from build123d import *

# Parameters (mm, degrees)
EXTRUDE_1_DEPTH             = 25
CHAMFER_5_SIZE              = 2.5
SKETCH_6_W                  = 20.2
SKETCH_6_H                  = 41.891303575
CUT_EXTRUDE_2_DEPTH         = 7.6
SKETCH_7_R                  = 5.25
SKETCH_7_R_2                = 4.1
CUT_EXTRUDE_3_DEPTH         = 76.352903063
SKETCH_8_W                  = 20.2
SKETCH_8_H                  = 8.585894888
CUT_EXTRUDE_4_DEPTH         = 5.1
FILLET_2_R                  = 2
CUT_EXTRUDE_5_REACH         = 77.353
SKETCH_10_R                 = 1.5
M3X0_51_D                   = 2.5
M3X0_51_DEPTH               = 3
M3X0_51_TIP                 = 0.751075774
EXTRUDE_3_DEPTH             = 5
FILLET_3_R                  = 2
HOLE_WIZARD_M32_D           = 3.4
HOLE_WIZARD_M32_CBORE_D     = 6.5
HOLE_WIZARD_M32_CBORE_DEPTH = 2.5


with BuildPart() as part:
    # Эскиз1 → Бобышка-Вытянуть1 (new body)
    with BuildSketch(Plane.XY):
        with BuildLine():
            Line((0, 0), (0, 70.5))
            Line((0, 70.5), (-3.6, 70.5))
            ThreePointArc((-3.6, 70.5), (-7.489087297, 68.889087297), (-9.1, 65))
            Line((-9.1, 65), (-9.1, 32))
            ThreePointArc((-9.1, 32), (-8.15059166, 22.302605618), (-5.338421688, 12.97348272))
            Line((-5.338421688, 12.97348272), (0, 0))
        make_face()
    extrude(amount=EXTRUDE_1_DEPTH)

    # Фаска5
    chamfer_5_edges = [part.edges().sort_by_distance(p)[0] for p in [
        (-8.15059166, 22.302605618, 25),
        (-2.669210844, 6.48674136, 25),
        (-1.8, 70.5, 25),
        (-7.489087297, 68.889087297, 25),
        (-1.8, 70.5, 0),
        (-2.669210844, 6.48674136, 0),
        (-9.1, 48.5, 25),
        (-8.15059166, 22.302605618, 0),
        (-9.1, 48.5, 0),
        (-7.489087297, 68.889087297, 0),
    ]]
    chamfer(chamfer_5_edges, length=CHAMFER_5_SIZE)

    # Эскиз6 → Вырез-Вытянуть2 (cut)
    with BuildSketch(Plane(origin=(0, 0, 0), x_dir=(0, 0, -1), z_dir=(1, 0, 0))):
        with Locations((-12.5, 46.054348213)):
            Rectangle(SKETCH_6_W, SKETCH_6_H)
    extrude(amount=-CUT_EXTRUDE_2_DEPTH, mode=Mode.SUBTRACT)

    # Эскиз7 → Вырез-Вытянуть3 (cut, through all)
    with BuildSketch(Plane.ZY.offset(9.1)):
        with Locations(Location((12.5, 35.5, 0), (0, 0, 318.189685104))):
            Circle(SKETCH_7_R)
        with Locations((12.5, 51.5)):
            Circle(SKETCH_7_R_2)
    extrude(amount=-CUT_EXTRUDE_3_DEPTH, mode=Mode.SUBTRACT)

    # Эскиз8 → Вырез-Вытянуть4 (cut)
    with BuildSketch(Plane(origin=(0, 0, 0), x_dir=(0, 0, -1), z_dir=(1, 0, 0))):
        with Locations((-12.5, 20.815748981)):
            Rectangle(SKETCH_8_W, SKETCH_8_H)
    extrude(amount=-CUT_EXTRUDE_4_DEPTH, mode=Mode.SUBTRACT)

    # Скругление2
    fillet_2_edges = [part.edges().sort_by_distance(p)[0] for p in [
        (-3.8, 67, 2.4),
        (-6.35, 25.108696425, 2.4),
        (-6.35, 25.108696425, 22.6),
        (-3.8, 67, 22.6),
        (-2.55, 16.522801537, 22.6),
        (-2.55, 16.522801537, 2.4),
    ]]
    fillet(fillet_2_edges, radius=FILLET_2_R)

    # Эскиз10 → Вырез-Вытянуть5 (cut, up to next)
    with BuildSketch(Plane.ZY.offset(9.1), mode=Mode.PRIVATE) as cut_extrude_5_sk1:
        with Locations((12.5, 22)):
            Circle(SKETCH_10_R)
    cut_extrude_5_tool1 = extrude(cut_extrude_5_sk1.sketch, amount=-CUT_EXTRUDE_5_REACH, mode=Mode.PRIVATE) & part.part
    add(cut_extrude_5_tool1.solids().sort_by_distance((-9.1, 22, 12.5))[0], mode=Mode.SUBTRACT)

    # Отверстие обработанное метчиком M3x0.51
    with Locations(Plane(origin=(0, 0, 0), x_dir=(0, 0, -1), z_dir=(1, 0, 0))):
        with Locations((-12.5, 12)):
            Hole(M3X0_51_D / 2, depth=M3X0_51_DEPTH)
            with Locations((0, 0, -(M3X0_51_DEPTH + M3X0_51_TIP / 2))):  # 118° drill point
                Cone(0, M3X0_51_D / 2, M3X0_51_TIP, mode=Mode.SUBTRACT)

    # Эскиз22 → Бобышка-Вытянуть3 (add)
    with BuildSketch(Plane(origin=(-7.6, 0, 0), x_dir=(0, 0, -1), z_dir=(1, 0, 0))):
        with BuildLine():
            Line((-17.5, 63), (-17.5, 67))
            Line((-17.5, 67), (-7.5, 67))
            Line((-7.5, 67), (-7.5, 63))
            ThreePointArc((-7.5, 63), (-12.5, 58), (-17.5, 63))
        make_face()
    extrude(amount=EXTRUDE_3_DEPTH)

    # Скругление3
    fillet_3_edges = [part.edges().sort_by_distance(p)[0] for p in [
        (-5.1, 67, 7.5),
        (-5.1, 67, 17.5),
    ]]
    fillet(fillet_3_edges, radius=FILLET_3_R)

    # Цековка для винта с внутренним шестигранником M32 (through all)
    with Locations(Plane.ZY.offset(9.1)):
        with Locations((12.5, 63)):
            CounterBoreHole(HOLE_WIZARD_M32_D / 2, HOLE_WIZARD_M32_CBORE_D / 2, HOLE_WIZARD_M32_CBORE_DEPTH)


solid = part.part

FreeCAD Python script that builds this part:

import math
import FreeCAD as App
import Part
import Sketcher
from FreeCAD import Vector


def edges_at(feature, points):
    """Names of the edges that pass closest to the given points."""
    edges = feature.Shape.Edges
    near = lambda p: min(range(len(edges)), key=lambda i: edges[i].distToShape(Part.Vertex(*p))[0])
    return sorted({f"Edge{near(p) + 1}" for p in points})


def add_polygon(sketch, points):
    """Adds a closed chain of lines whose ends are joined by coincident constraints."""
    first, n = sketch.GeometryCount, len(points)
    for a, b in zip(points, points[1:] + points[:1]):
        sketch.addGeometry(Part.LineSegment(App.Vector(*a, 0), App.Vector(*b, 0)), False)
    for i in range(n):
        sketch.addConstraint(Sketcher.Constraint("Coincident", first + i, 2, first + (i + 1) % n, 1))

doc = App.newDocument("Part")
body = doc.addObject("PartDesign::Body", "Body")

sketch1 = body.newObject("Sketcher::SketchObject", "Sketch")
sketch1.AttachmentSupport = (doc.getObject("XY_Plane"), [""])
sketch1.MapMode = "FlatFace"
sketch1.addGeometry([
    Part.LineSegment(Vector(0, 0, 0), Vector(0, 70.5, 0)),
    Part.LineSegment(Vector(0, 70.5, 0), Vector(-3.6, 70.5, 0)),
    Part.ArcOfCircle(Part.Circle(Vector(-3.6, 65, 0), Vector(0, 0, 1), 5.5), math.radians(90), math.radians(180)),
    Part.LineSegment(Vector(-9.1, 65, 0), Vector(-9.1, 32, 0)),
    Part.ArcOfCircle(Part.Circle(Vector(40.9, 32, 0), Vector(0, 0, 1), 50), math.radians(180), math.radians(202)),
    Part.LineSegment(Vector(-5.3, 13, 0), Vector(0, 0, 0)),
], False)
sketch1.addConstraint([
    Sketcher.Constraint("Coincident", 0, 2, 1, 1),
    Sketcher.Constraint("Tangent", 1, 2, 2, 1),
    Sketcher.Constraint("Tangent", 2, 2, 3, 1),
    Sketcher.Constraint("Tangent", 3, 2, 4, 1),
    Sketcher.Constraint("Tangent", 4, 2, 5, 1),
    Sketcher.Constraint("Coincident", 5, 2, 0, 1),
    Sketcher.Constraint("Vertical", 0),
    Sketcher.Constraint("Horizontal", 1),
    Sketcher.Constraint("Vertical", 3),
    Sketcher.Constraint("Coincident", 5, 2, -1, 1),
    Sketcher.Constraint("Radius", 4, 50.0),
    Sketcher.Constraint("Radius", 2, 5.5),
    Sketcher.Constraint("DistanceY", 3, 2, 3, 1, 33.0),
    Sketcher.Constraint("DistanceX", 1, 2, 1, 1, 3.6),
    Sketcher.Constraint("DistanceY", 0, 1, 0, 2, 70.5),
])
pad1 = body.newObject("PartDesign::Pad", "Pad")
pad1.Profile = sketch1
pad1.Length = 25
doc.recompute()

chamfer = body.newObject("PartDesign::Chamfer", "Chamfer")
chamfer.Base = (pad1, edges_at(pad1, [
    (-8.151, 22.303, 25),
    (-2.669, 6.487, 25),
    (-1.8, 70.5, 25),
    (-7.489, 68.889, 25),
    (-1.8, 70.5, 0),
    (-2.669, 6.487, 0),
    (-9.1, 48.5, 25),
    (-8.151, 22.303, 0),
    (-9.1, 48.5, 0),
    (-7.489, 68.889, 0),
]))
chamfer.Size = 2.5

sketch2 = body.newObject("Sketcher::SketchObject", "Sketch001")
sketch2.AttachmentSupport = (doc.getObject("YZ_Plane"), [""])
sketch2.MapMode = "FlatFace"
add_polygon(sketch2, [(67, 23), (25, 23), (25, 2), (67, 2)])
sketch2.addConstraint([
    Sketcher.Constraint("Horizontal", 0),
    Sketcher.Constraint("Vertical", 1),
    Sketcher.Constraint("Horizontal", 2),
    Sketcher.Constraint("Vertical", 3),
    Sketcher.Constraint("DistanceY", 1, 2, 1, 1, 20.2),
    Sketcher.Constraint("DistanceX", -1, 1, 2, 2, 67.0),
    Sketcher.Constraint("DistanceY", -1, 1, 0, 2, 22.6),
    Sketcher.Constraint("DistanceX", 0, 2, 0, 1, 41.891304),
])
pocket1 = body.newObject("PartDesign::Pocket", "Pocket")
pocket1.Profile = sketch2
pocket1.Length = 7.6

sketch3 = body.newObject("Sketcher::SketchObject", "Sketch002")
sketch3.AttachmentSupport = (doc.getObject("YZ_Plane"), [""])
sketch3.MapMode = "FlatFace"
sketch3.AttachmentOffset = App.Placement(Vector(0, 0, -9.1), App.Rotation())
sketch3.addGeometry([
    Part.Circle(Vector(35.5, 12.5, 0), Vector(0, 0, 1), 5.2),
    Part.Circle(Vector(51.5, 12.5, 0), Vector(0, 0, 1), 4.1),
], False)
sketch3.addConstraint([
    Sketcher.Constraint("Horizontal", 0, 3, 1, 3),
    Sketcher.Constraint("Diameter", 0, 10.5),
    Sketcher.Constraint("Diameter", 1, 8.2),
    Sketcher.Constraint("DistanceX", 0, 3, 1, 3, 16.0),
    Sketcher.Constraint("DistanceX", -1, 1, 0, 3, 35.5),
    Sketcher.Constraint("DistanceY", -1, 1, 0, 3, 12.5),
])
pocket2 = body.newObject("PartDesign::Pocket", "Pocket001")
pocket2.Profile = sketch3
pocket2.Type = "ThroughAll"
pocket2.Reversed = True

sketch4 = body.newObject("Sketcher::SketchObject", "Sketch003")
sketch4.AttachmentSupport = (doc.getObject("YZ_Plane"), [""])
sketch4.MapMode = "FlatFace"
add_polygon(sketch4, [(25, 23), (17, 23), (17, 2), (25, 2)])
sketch4.addConstraint([
    Sketcher.Constraint("Horizontal", 0),
    Sketcher.Constraint("Vertical", 1),
    Sketcher.Constraint("Horizontal", 2),
    Sketcher.Constraint("Vertical", 3),
    Sketcher.Constraint("DistanceY", 1, 2, 1, 1, 20.2),
    Sketcher.Constraint("DistanceY", -1, 1, 0, 2, 22.6),
    Sketcher.Constraint("DistanceX", -1, 1, 0, 2, 16.522802),
    Sketcher.Constraint("DistanceX", 0, 2, 0, 1, 8.585895),
])
pocket3 = body.newObject("PartDesign::Pocket", "Pocket002")
pocket3.Profile = sketch4
pocket3.Length = 5.1
doc.recompute()

fillet = body.newObject("PartDesign::Fillet", "Fillet")
fillet.Base = (pocket3, edges_at(pocket3, [
    (-3.8, 67, 2.4),
    (-6.35, 25.109, 2.4),
    (-6.35, 25.109, 22.6),
    (-3.8, 67, 22.6),
    (-2.55, 16.523, 22.6),
    (-2.55, 16.523, 2.4),
]))
fillet.Radius = 2

sketch5 = body.newObject("Sketcher::SketchObject", "Sketch004")
sketch5.AttachmentSupport = (doc.getObject("YZ_Plane"), [""])
sketch5.MapMode = "FlatFace"
sketch5.AttachmentOffset = App.Placement(Vector(0, 0, -9.1), App.Rotation())
sketch5.addGeometry(Part.Circle(Vector(22, 12.5, 0), Vector(0, 0, 1), 1.5), False)
sketch5.addConstraint([
    Sketcher.Constraint("Diameter", 0, 3.0),
    Sketcher.Constraint("DistanceX", -1, 1, 0, 3, 22.0),
    Sketcher.Constraint("DistanceY", -1, 1, 0, 3, 12.5),
])
pocket4 = body.newObject("PartDesign::Pocket", "Pocket003")
pocket4.Profile = sketch5
pocket4.Length = 4
pocket4.Reversed = True

sketch6 = body.newObject("Sketcher::SketchObject", "Sketch005")
sketch6.AttachmentSupport = (doc.getObject("YZ_Plane"), [""])
sketch6.MapMode = "FlatFace"
sketch6.addGeometry(Part.Circle(Vector(12, 12.5, 0), Vector(0, 0, 1), 1.2), False)
sketch6.addConstraint([
    Sketcher.Constraint("Diameter", 0, 2.5),
    Sketcher.Constraint("DistanceX", -1, 1, 0, 3, 12.0),
    Sketcher.Constraint("DistanceY", -1, 1, 0, 3, 12.5),
])
doc.recompute()
hole = body.newObject("PartDesign::Hole", "Hole")
hole.Profile = sketch6
hole.ThreadType = "None"
hole.Diameter = 2.5
hole.DepthType = "Dimension"
hole.Depth = 3
hole.DrillPoint = "Angled"
hole.DrillPointAngle = 118

sketch7 = body.newObject("Sketcher::SketchObject", "Sketch006")
sketch7.AttachmentSupport = (doc.getObject("YZ_Plane"), [""])
sketch7.MapMode = "FlatFace"
sketch7.AttachmentOffset = App.Placement(Vector(0, 0, -7.6), App.Rotation())
sketch7.addGeometry([
    Part.LineSegment(Vector(67, 17.5, 0), Vector(63, 17.5, 0)),
    Part.ArcOfCircle(Part.Circle(Vector(63, 12.5, 0), Vector(0, 0, 1), 5), math.radians(90), math.radians(270)),
    Part.LineSegment(Vector(63, 7.5, 0), Vector(67, 7.5, 0)),
    Part.LineSegment(Vector(67, 7.5, 0), Vector(67, 17.5, 0)),
], False)
sketch7.addConstraint([
    Sketcher.Constraint("Tangent", 0, 2, 1, 1),
    Sketcher.Constraint("Tangent", 1, 2, 2, 1),
    Sketcher.Constraint("Coincident", 2, 2, 3, 1),
    Sketcher.Constraint("Coincident", 3, 2, 0, 1),
    Sketcher.Constraint("Horizontal", 0),
    Sketcher.Constraint("Horizontal", 2),
    Sketcher.Constraint("Vertical", 3),
    Sketcher.Constraint("Radius", 1, 5.0),
    Sketcher.Constraint("DistanceX", 0, 2, 0, 1, 4.0),
    Sketcher.Constraint("DistanceX", -1, 1, 1, 3, 63.0),
    Sketcher.Constraint("DistanceY", -1, 1, 1, 3, 12.5),
])
pad2 = body.newObject("PartDesign::Pad", "Pad001")
pad2.Profile = sketch7
pad2.Length = 5
doc.recompute()

fillet2 = body.newObject("PartDesign::Fillet", "Fillet001")
fillet2.Base = (pad2, edges_at(pad2, [(-5.1, 67, 7.5), (-5.1, 67, 17.5)]))
fillet2.Radius = 2

sketch8 = body.newObject("Sketcher::SketchObject", "Sketch007")
sketch8.AttachmentSupport = (doc.getObject("YZ_Plane"), [""])
sketch8.MapMode = "FlatFace"
sketch8.AttachmentOffset = App.Placement(Vector(0, 0, -9.1), App.Rotation())
sketch8.addGeometry(Part.Circle(Vector(63, 12.5, 0), Vector(0, 0, 1), 1.7), False)
sketch8.addConstraint([
    Sketcher.Constraint("Diameter", 0, 3.4),
    Sketcher.Constraint("DistanceX", -1, 1, 0, 3, 63.0),
    Sketcher.Constraint("DistanceY", -1, 1, 0, 3, 12.5),
])
doc.recompute()
hole2 = body.newObject("PartDesign::Hole", "Hole001")
hole2.Profile = sketch8
hole2.ThreadType = "None"
hole2.Diameter = 3.4
hole2.DepthType = "ThroughAll"
hole2.HoleCutType = "Counterbore"
hole2.HoleCutDiameter = 6.5
hole2.HoleCutDepth = 2.5
hole2.Reversed = True

doc.recompute()
